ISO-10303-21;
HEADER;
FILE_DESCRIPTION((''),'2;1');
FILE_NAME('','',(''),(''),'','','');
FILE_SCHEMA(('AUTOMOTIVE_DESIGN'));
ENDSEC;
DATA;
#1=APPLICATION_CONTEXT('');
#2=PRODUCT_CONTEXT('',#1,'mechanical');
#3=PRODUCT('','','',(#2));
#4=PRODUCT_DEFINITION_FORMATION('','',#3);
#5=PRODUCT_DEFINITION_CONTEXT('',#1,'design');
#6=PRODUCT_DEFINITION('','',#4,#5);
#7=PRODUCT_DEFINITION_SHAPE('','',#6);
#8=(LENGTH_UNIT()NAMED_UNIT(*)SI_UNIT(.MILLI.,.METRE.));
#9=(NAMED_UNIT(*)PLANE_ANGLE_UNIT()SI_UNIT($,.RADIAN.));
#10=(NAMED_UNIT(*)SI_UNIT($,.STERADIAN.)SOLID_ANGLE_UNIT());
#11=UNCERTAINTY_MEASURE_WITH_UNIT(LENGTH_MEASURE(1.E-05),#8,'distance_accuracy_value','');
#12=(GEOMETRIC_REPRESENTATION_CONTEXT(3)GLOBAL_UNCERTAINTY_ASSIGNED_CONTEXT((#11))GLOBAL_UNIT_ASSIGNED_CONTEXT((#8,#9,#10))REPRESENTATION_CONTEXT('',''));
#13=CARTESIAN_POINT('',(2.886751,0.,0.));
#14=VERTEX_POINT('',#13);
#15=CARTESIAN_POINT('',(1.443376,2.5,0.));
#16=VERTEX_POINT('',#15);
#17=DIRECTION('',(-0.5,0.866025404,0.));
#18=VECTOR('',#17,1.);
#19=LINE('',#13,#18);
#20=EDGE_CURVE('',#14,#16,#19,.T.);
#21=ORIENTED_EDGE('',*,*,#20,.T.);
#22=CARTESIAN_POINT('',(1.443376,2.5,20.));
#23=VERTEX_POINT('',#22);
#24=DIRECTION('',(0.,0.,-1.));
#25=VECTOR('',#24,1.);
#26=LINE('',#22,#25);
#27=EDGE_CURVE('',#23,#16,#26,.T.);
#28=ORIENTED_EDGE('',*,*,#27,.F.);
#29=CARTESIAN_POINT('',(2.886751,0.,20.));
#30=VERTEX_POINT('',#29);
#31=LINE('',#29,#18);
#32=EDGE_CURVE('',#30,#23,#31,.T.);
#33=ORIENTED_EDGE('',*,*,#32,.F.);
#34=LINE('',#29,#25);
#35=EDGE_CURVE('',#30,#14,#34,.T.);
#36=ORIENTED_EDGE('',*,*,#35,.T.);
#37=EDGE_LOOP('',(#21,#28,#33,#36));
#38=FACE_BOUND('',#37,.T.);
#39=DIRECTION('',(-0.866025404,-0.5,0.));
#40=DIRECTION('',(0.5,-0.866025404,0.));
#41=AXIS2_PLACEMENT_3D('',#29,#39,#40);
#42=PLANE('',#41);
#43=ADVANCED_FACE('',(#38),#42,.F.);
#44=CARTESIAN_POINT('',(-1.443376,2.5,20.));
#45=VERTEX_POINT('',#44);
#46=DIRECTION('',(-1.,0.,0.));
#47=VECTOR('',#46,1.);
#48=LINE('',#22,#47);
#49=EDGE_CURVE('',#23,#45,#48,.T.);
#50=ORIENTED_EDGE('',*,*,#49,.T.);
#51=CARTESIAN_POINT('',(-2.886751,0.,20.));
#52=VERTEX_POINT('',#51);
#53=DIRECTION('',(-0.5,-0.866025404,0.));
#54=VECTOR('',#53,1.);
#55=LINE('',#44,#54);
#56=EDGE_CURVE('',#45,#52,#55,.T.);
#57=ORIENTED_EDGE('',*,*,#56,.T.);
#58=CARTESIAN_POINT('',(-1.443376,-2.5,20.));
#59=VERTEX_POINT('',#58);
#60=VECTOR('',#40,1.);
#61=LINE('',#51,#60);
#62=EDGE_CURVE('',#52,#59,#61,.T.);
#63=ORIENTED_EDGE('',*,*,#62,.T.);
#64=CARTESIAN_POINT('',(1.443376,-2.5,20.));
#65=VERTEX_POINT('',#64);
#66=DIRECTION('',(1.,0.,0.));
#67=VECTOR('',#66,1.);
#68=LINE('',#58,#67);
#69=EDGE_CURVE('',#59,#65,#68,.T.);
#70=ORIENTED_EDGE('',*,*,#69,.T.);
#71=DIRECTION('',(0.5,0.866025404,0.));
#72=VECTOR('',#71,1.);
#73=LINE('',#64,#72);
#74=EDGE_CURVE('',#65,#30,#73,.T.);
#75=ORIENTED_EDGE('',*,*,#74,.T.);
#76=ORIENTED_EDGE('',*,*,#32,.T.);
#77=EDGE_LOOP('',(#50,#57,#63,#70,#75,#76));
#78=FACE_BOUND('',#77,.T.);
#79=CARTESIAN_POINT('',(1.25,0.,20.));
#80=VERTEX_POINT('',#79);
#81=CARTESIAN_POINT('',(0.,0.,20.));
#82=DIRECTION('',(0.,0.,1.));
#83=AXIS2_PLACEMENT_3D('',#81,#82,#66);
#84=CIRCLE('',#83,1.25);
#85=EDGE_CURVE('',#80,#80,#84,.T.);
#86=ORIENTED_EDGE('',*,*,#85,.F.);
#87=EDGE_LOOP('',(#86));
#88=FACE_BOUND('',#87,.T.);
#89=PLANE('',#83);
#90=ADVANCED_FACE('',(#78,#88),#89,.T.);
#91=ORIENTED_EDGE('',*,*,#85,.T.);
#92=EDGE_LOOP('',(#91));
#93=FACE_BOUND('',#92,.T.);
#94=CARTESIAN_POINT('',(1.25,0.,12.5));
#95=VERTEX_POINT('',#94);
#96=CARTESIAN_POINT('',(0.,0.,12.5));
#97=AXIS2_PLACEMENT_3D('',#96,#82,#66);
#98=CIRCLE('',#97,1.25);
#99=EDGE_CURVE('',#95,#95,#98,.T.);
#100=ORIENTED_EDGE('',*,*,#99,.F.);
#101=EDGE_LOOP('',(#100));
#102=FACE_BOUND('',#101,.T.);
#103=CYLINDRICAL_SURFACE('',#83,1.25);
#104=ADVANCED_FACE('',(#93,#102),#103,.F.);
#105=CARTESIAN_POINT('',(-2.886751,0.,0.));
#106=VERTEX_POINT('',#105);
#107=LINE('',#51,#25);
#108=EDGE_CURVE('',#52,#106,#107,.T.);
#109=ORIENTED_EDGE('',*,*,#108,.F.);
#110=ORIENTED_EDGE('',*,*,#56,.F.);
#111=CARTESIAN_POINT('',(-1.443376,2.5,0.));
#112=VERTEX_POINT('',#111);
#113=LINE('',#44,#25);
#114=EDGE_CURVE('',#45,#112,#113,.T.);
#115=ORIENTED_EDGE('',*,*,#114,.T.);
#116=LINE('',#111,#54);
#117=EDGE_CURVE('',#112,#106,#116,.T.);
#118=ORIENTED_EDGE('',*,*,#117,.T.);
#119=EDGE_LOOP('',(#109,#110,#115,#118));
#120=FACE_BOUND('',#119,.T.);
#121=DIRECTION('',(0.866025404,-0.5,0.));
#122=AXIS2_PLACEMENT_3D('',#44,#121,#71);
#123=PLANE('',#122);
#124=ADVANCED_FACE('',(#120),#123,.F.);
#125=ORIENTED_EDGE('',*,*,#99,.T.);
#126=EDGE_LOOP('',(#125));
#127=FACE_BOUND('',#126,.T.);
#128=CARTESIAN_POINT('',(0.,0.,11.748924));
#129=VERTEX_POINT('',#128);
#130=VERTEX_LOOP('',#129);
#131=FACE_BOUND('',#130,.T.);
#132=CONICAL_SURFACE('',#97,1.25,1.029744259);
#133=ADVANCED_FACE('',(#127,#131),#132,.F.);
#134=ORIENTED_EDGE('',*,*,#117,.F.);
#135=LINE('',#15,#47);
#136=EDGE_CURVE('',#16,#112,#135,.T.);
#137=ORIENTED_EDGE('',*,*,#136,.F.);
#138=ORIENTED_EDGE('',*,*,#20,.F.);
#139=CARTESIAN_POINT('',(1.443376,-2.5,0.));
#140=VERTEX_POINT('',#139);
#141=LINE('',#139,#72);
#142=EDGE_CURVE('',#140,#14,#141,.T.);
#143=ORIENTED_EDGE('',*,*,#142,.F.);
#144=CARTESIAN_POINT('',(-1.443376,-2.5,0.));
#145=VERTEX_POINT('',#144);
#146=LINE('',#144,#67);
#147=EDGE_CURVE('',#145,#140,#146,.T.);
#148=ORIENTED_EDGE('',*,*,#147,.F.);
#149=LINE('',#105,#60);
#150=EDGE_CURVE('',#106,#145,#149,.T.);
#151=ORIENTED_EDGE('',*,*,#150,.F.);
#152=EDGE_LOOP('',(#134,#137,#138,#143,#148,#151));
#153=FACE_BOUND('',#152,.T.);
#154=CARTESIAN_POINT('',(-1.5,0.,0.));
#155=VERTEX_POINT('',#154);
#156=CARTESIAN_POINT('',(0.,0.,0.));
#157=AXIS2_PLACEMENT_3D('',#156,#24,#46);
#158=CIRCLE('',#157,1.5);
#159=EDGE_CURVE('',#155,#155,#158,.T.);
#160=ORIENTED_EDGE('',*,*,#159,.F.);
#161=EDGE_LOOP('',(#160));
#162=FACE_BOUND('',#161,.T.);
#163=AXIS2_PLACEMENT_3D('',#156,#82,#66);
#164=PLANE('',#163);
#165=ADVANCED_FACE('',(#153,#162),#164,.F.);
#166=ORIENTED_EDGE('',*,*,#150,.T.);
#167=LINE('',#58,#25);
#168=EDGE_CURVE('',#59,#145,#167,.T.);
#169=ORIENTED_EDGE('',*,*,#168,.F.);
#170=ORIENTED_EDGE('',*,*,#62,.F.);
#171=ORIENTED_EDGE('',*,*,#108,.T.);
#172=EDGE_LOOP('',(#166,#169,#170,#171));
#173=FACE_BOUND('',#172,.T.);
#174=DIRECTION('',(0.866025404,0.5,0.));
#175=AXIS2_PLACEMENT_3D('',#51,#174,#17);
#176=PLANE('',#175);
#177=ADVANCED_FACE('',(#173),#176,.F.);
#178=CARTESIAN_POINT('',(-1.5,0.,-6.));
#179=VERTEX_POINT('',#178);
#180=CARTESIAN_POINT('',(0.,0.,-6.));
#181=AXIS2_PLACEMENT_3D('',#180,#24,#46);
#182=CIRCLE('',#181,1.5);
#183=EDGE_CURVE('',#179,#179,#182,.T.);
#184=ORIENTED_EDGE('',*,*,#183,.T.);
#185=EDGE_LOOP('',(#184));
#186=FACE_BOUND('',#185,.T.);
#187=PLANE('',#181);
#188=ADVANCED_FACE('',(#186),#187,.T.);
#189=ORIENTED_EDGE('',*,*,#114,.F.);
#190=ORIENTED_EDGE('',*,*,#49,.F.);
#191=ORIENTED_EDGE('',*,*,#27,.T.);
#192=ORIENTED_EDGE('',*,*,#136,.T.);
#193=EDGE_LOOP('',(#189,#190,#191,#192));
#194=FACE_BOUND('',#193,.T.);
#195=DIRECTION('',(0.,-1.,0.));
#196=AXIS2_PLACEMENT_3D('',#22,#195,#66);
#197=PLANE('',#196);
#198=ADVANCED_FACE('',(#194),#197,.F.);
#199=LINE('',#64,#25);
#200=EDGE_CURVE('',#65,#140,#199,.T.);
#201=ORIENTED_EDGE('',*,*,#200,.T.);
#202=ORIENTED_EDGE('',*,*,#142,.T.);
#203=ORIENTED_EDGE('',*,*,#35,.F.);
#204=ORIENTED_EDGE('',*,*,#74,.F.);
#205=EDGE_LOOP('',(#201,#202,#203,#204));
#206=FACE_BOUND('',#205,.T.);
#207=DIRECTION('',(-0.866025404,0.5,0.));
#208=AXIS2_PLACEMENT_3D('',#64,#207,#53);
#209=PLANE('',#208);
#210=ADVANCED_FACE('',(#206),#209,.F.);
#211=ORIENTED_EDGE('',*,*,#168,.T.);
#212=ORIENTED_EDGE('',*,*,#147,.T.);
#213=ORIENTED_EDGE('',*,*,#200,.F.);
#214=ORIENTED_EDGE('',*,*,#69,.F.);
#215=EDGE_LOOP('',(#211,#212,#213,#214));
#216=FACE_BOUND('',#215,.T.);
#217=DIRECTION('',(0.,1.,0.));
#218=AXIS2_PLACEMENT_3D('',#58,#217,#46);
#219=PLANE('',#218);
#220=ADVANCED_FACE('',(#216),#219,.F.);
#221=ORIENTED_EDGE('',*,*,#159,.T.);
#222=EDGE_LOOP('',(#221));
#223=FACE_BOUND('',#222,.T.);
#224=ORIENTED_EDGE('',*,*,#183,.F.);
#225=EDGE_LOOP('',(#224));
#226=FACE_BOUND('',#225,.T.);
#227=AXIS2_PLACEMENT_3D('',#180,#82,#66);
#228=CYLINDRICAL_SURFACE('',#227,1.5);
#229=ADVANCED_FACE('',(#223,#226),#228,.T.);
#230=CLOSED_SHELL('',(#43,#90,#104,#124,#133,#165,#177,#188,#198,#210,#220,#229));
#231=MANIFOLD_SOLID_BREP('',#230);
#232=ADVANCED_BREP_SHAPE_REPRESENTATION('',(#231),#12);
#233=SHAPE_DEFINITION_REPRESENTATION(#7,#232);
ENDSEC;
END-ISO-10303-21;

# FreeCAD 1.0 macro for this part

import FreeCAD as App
import Part
import Sketcher
from FreeCAD import Vector
Q = App.Units.Quantity

doc = App.newDocument("Part")
body = doc.addObject("PartDesign::Body", "Body")

sketch1 = body.newObject("Sketcher::SketchObject", "Sketch")
sketch1.AttachmentSupport = (doc.getObject("XY_Plane"), [""])
sketch1.MapMode = "FlatFace"
sketch1.addGeometry(Part.LineSegment(Vector(-1.443376, 2.5, 0), Vector(-2.886751, 0, 0)), False)
sketch1.addGeometry(Part.LineSegment(Vector(-2.886751, 0, 0), Vector(-1.443376, -2.5, 0)), False)
sketch1.addGeometry(Part.LineSegment(Vector(-1.443376, -2.5, 0), Vector(1.443376, -2.5, 0)), False)
sketch1.addGeometry(Part.LineSegment(Vector(1.443376, -2.5, 0), Vector(2.886751, 0, 0)), False)
sketch1.addGeometry(Part.LineSegment(Vector(2.886751, 0, 0), Vector(1.443376, 2.5, 0)), False)
sketch1.addGeometry(Part.LineSegment(Vector(1.443376, 2.5, 0), Vector(-1.443376, 2.5, 0)), False)
sketch1.addConstraint(Sketcher.Constraint("Coincident", 0, 2, 1, 1))
sketch1.addConstraint(Sketcher.Constraint("Coincident", 1, 2, 2, 1))
sketch1.addConstraint(Sketcher.Constraint("Coincident", 2, 2, 3, 1))
sketch1.addConstraint(Sketcher.Constraint("Coincident", 3, 2, 4, 1))
sketch1.addConstraint(Sketcher.Constraint("Coincident", 4, 2, 5, 1))
sketch1.addConstraint(Sketcher.Constraint("Coincident", 5, 2, 0, 1))
sketch1.addConstraint(Sketcher.Constraint("Horizontal", 2))
sketch1.addConstraint(Sketcher.Constraint("Horizontal", 5))
sketch1.addConstraint(Sketcher.Constraint("Symmetric", 0, 2, 3, 2, -1, 1))
sketch1.addConstraint(Sketcher.Constraint("Symmetric", 1, 2, 4, 2, -1, 1))
sketch1.addConstraint(Sketcher.Constraint("PointOnObject", 0, 2, -1))
sketch1.addConstraint(Sketcher.Constraint("Parallel", 0, 3))
sketch1.addConstraint(Sketcher.Constraint("Vertical", 2, 2, 4, 2))
sketch1.addConstraint(Sketcher.Constraint("Angle", 0, Q("-120 deg")))
sketch1.addConstraint(Sketcher.Constraint("DistanceY", 2, 2, 4, 2, 5.0))
sketch1.addConstraint(Sketcher.Constraint("DistanceX", 2, 1, 2, 2, 2.886751))
pad1 = body.newObject("PartDesign::Pad", "Pad")
pad1.Profile = sketch1
pad1.Length = 20

sketch2 = body.newObject("Sketcher::SketchObject", "Sketch001")
sketch2.AttachmentSupport = (doc.getObject("XY_Plane"), [""])
sketch2.MapMode = "FlatFace"
sketch2.addGeometry(Part.Circle(Vector(0, 0, 0), Vector(0, 0, 1), 1.5), False)
sketch2.addConstraint(Sketcher.Constraint("Coincident", 0, 3, -1, 1))
sketch2.addConstraint(Sketcher.Constraint("Diameter", 0, 3.0))
pad2 = body.newObject("PartDesign::Pad", "Pad001")
pad2.Profile = sketch2
pad2.Length = 6
pad2.Reversed = True

sketch3 = body.newObject("Sketcher::SketchObject", "Sketch002")
sketch3.AttachmentSupport = (doc.getObject("XY_Plane"), [""])
sketch3.MapMode = "FlatFace"
sketch3.AttachmentOffset = App.Placement(Vector(0, 0, 20), App.Rotation())
sketch3.addGeometry(Part.Circle(Vector(0, 0, 0), Vector(0, 0, 1), 1.25), False)
sketch3.addConstraint(Sketcher.Constraint("Coincident", 0, 3, -1, 1))
sketch3.addConstraint(Sketcher.Constraint("Diameter", 0, 2.5))
doc.recompute()
hole = body.newObject("PartDesign::Hole", "Hole")
hole.Profile = sketch3
hole.ThreadType = "None"
hole.Diameter = 2.5
hole.DepthType = "Dimension"
hole.Depth = 7.5
hole.DrillPoint = "Angled"
hole.DrillPointAngle = 118

doc.recompute()
